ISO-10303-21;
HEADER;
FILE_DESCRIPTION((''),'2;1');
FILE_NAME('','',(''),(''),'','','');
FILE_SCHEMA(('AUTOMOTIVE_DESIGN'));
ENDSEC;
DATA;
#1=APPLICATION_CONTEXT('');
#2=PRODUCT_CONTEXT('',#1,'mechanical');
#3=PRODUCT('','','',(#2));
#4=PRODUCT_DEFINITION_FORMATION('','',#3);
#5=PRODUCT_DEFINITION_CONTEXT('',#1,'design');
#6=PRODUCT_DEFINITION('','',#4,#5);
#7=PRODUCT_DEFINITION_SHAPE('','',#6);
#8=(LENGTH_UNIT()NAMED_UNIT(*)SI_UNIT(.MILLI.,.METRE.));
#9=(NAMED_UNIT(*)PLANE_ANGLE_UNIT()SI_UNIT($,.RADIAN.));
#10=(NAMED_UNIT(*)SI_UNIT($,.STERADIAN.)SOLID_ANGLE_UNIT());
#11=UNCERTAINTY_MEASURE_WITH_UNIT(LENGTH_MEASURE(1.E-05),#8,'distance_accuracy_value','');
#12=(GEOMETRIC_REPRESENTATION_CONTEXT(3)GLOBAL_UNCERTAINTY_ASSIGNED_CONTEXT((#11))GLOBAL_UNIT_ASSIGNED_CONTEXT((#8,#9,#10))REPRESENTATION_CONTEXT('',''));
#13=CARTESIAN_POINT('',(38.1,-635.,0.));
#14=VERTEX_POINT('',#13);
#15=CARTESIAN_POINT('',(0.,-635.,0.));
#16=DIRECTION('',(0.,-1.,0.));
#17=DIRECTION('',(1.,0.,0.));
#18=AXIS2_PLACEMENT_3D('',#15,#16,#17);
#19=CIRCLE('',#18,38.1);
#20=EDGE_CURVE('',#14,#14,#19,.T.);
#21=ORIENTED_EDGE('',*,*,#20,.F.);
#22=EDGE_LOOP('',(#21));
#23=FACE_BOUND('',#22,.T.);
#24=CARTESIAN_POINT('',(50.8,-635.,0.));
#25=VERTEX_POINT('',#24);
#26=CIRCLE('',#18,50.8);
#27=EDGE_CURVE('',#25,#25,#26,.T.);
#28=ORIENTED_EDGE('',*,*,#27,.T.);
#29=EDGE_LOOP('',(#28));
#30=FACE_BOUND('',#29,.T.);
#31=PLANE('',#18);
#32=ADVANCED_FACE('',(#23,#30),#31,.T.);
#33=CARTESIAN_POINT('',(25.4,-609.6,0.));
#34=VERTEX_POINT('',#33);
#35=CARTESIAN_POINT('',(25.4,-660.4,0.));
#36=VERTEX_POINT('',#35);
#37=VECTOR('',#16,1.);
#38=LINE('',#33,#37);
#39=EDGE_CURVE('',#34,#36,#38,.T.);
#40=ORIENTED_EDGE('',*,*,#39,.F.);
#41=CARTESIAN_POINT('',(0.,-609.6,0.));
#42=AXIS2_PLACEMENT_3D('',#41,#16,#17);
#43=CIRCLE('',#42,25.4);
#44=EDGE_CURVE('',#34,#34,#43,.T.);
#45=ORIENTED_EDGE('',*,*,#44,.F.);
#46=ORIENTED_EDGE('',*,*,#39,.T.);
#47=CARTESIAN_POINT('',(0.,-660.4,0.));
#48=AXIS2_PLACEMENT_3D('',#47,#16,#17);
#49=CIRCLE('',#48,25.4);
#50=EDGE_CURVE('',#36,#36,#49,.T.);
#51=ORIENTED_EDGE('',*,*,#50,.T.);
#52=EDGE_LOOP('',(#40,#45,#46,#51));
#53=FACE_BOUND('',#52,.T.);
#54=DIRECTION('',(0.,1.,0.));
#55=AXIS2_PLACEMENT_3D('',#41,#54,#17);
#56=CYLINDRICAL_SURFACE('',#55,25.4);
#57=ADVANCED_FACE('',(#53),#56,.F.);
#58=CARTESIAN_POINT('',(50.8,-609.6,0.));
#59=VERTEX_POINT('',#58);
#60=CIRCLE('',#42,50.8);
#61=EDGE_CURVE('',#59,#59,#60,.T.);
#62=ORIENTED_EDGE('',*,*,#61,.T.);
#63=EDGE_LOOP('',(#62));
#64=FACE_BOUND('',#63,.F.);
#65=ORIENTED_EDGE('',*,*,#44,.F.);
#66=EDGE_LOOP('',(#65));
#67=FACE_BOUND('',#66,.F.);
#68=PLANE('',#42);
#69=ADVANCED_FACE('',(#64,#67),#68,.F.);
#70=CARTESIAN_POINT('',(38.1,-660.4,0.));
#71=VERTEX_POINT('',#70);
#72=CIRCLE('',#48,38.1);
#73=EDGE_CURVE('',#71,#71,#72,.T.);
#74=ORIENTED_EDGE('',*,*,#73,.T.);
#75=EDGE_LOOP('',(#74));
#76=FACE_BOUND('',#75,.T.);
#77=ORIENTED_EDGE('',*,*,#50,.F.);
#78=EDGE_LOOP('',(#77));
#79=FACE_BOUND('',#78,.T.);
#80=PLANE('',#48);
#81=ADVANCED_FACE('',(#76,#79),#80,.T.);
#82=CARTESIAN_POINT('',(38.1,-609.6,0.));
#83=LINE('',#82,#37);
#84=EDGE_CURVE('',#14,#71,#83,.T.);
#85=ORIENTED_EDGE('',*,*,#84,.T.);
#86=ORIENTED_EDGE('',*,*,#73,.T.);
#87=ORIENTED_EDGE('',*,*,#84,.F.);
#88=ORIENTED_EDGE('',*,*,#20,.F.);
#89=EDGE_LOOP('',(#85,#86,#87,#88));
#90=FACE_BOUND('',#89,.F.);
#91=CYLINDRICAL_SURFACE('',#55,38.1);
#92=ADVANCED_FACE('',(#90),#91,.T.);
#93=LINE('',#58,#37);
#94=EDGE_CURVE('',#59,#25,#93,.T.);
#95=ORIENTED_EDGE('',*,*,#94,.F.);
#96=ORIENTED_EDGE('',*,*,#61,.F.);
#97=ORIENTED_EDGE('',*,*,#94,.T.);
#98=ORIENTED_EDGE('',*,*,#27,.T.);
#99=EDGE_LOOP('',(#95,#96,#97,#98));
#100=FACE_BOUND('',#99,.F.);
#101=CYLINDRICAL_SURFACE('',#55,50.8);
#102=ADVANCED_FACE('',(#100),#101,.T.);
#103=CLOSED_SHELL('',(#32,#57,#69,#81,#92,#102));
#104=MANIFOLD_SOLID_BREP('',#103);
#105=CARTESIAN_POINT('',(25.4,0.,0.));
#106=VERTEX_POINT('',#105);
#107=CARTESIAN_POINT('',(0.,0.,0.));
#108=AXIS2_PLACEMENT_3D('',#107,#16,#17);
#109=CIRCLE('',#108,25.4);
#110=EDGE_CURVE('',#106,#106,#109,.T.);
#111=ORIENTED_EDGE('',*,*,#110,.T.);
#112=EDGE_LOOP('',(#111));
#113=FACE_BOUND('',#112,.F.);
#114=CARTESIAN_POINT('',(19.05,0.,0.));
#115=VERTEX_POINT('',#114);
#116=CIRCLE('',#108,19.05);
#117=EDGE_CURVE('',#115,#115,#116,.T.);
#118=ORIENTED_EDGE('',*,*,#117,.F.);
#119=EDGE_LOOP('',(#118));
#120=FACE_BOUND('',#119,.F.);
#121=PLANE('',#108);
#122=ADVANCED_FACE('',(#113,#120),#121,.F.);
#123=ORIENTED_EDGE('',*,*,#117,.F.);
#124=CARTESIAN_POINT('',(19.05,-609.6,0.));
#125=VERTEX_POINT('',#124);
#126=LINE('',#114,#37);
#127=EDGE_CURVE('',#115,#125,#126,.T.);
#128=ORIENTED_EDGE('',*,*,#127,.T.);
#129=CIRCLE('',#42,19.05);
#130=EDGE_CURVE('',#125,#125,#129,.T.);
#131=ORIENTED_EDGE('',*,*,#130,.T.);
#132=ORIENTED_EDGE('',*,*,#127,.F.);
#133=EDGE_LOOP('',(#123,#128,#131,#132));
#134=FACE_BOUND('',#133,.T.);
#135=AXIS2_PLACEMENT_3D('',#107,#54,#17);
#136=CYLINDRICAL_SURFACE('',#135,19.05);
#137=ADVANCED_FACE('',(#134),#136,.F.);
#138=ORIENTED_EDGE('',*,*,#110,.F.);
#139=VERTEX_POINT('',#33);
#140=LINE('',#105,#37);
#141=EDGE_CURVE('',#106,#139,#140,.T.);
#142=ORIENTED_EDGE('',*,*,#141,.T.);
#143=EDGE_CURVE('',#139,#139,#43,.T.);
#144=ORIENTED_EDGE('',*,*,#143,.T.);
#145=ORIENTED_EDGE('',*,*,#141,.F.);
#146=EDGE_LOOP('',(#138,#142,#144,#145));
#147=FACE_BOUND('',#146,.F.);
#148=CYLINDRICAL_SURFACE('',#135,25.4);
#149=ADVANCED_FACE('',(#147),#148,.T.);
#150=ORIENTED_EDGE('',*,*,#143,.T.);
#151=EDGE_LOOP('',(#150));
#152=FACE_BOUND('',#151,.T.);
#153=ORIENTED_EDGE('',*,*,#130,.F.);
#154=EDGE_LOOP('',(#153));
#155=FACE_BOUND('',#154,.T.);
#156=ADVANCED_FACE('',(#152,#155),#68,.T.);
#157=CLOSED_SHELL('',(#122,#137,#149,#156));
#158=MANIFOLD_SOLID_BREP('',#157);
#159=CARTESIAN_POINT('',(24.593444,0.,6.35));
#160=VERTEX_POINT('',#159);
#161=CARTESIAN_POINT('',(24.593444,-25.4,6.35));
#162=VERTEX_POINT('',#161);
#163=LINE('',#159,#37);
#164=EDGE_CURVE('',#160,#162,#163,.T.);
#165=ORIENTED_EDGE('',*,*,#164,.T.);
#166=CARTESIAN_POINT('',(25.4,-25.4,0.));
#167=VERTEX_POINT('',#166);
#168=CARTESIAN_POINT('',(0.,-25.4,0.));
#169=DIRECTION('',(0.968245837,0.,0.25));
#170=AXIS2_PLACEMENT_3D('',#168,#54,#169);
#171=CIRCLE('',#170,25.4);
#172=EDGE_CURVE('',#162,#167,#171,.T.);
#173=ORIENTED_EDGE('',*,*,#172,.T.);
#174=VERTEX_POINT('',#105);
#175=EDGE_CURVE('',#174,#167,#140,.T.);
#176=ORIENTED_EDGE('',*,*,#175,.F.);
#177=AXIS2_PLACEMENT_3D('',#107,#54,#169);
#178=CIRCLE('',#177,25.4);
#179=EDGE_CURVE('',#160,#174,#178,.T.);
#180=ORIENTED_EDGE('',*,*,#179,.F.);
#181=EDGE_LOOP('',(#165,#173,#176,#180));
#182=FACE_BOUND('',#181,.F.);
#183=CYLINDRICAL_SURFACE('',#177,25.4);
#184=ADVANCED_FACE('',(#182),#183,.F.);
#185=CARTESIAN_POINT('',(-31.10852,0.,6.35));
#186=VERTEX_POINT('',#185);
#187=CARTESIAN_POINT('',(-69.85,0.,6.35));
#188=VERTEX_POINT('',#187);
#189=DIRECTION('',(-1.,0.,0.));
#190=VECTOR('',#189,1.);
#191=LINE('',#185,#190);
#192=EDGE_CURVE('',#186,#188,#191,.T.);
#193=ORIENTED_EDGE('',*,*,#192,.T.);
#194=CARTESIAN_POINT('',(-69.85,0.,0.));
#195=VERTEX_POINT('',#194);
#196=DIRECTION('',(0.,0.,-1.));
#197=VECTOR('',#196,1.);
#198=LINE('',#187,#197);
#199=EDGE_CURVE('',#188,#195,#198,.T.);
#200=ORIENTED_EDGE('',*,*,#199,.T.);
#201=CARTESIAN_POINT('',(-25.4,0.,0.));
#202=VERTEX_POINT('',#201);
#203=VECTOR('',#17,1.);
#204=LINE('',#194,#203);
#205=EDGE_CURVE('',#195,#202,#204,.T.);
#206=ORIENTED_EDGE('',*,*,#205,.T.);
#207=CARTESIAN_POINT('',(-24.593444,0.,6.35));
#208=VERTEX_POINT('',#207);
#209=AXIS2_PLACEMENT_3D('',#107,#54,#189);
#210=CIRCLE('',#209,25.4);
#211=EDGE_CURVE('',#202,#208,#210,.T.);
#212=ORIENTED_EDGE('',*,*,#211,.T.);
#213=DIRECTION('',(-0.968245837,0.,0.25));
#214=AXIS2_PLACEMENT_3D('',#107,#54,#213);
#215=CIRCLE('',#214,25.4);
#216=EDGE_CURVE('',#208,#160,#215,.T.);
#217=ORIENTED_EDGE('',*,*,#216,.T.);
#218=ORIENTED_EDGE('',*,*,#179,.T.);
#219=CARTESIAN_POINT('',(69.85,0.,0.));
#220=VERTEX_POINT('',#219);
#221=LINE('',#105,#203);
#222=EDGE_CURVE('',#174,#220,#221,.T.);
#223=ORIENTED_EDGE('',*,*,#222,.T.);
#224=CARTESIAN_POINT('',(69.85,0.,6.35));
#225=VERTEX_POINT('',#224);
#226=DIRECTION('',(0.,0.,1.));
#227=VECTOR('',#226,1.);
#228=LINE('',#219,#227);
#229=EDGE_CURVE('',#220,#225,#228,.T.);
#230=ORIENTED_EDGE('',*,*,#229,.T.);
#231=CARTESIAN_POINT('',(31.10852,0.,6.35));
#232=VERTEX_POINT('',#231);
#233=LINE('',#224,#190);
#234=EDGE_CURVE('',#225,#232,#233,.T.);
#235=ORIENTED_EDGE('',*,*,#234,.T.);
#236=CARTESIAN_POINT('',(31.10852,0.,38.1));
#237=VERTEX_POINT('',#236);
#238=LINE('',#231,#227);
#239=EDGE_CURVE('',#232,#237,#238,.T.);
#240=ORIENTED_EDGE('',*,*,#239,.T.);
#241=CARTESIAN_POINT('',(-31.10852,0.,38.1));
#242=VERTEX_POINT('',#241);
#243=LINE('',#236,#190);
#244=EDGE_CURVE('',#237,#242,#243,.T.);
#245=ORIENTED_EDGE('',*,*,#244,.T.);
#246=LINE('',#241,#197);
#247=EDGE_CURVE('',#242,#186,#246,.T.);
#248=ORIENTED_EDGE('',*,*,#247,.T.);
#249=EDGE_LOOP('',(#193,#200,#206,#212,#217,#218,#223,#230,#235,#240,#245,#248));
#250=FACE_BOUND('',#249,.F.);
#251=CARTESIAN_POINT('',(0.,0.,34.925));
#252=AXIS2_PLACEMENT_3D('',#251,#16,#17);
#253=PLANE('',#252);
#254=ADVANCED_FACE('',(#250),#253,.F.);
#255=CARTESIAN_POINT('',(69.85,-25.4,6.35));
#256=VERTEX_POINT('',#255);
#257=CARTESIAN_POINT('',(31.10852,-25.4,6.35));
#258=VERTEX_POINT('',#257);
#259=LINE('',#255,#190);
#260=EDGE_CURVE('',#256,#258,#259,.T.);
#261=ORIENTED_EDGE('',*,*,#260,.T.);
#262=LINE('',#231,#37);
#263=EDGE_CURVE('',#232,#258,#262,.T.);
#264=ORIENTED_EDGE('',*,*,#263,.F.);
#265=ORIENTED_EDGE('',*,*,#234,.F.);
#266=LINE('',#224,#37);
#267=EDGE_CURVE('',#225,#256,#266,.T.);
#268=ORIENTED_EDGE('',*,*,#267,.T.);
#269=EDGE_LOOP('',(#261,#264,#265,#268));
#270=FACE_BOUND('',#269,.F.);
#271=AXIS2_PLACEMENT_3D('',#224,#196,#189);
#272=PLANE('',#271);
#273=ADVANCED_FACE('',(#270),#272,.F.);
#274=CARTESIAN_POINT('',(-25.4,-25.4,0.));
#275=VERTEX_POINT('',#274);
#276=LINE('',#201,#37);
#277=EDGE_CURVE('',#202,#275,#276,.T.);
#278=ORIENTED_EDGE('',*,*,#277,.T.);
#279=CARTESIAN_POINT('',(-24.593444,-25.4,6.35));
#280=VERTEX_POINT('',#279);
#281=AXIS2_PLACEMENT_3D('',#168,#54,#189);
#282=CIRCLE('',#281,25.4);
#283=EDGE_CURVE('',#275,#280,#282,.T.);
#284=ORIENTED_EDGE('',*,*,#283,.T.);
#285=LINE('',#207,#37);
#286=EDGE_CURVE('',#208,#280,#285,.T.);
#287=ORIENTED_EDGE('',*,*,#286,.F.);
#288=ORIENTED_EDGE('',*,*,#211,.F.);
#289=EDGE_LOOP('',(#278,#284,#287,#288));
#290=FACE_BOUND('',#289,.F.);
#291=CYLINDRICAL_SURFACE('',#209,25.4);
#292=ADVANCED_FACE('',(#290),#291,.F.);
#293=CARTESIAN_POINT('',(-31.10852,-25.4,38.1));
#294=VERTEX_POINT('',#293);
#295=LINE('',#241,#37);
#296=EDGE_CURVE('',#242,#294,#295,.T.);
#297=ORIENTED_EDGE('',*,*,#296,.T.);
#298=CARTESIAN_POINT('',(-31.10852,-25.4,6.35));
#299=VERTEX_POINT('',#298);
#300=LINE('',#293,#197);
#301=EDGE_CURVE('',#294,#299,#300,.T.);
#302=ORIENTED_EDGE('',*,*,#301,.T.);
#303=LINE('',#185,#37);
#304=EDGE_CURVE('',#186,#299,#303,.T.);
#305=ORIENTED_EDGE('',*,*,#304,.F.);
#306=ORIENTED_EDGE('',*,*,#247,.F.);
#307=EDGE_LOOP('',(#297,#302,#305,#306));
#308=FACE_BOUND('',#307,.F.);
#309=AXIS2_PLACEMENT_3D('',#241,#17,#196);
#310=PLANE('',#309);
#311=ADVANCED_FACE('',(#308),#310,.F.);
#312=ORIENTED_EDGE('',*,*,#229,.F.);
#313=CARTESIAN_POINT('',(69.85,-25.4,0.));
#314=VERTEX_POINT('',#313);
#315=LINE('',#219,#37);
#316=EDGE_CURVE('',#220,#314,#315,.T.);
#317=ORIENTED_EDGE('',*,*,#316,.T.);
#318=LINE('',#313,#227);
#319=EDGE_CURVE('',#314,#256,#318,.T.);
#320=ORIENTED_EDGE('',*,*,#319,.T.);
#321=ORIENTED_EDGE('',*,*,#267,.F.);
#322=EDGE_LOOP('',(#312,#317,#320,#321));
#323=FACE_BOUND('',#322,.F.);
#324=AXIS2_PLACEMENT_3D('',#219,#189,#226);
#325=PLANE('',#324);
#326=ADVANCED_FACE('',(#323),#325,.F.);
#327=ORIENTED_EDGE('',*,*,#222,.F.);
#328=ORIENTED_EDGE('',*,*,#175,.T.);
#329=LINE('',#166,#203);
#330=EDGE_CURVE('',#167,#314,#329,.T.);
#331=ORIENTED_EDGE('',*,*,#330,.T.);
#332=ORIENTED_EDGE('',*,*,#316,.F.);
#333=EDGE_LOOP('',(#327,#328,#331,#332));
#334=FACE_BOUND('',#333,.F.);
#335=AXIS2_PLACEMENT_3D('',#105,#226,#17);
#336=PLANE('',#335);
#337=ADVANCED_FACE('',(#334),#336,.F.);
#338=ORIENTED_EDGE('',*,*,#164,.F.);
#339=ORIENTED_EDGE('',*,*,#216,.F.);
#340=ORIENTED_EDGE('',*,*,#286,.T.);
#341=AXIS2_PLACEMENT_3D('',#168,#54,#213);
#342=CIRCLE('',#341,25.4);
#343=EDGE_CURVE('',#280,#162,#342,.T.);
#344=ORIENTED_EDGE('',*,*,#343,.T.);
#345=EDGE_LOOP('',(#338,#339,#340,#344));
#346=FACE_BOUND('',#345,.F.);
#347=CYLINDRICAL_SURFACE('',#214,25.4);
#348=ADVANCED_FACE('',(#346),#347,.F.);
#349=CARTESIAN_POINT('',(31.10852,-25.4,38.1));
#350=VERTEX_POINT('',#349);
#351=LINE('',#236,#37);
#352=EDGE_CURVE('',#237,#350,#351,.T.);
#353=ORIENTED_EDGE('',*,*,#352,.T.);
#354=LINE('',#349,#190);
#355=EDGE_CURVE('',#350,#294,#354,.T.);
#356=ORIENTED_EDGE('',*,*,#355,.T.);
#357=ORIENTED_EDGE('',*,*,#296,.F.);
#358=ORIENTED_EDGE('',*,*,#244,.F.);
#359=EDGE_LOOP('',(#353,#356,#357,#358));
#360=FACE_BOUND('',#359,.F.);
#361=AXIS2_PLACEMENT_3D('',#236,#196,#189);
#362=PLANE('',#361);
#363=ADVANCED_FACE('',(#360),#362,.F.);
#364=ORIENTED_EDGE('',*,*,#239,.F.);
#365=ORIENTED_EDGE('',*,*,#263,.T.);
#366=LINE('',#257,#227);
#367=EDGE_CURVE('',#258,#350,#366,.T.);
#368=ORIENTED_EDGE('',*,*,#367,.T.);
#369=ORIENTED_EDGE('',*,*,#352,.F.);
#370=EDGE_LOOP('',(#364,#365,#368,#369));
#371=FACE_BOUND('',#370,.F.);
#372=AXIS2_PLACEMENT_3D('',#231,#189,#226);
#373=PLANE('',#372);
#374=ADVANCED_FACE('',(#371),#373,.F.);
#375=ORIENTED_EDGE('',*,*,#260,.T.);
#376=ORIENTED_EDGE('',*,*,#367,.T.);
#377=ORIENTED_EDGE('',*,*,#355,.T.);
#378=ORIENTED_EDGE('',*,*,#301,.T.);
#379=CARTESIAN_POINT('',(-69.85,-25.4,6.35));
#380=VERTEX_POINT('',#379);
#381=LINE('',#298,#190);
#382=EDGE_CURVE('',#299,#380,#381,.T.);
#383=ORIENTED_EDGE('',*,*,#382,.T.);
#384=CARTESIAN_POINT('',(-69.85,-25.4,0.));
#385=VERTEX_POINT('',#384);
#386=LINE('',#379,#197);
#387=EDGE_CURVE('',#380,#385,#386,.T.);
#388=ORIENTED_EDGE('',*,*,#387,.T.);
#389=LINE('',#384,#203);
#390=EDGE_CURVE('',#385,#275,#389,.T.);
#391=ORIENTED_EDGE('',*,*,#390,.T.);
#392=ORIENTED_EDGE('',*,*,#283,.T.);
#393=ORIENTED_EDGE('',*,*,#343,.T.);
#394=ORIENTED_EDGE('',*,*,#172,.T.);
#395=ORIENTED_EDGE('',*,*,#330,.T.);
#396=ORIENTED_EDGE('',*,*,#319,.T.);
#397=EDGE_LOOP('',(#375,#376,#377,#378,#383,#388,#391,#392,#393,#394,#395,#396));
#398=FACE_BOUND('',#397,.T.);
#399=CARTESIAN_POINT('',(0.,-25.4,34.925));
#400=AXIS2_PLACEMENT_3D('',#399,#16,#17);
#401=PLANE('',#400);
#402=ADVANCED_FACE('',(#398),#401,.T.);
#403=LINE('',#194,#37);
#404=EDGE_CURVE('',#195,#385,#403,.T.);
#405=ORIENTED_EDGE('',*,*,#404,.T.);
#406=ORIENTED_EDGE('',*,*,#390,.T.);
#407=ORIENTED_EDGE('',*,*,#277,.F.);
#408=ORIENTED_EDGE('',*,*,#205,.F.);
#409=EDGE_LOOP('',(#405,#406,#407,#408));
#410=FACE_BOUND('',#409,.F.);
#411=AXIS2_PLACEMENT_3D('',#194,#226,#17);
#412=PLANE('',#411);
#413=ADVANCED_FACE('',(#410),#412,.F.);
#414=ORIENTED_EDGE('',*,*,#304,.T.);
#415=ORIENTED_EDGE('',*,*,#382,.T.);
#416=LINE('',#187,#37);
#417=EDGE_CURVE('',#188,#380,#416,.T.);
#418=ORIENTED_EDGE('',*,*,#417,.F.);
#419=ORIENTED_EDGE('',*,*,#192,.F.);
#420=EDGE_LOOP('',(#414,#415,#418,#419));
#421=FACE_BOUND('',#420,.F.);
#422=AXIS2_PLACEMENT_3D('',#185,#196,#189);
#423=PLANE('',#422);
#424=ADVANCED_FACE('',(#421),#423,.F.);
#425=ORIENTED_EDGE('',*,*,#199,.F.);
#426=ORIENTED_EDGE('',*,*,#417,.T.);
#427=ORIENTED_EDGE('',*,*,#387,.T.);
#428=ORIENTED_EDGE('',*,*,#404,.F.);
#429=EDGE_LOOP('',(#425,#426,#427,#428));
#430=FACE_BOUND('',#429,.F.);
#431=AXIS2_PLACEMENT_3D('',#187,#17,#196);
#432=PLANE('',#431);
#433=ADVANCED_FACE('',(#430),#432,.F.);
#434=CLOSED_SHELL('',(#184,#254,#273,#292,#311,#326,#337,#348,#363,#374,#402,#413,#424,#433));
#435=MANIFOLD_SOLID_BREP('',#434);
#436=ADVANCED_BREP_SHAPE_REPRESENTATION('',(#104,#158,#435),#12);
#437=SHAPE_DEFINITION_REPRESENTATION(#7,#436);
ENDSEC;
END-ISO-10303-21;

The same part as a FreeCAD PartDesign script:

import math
import FreeCAD as App
import Part
import Sketcher
from FreeCAD import Vector
Q = App.Units.Quantity

doc = App.newDocument("Part")
body = doc.addObject("PartDesign::Body", "Body")

# Sketch on XZ plane
sketch1 = body.newObject("Sketcher::SketchObject", "Sketch")
sketch1.AttachmentSupport = (doc.getObject("XZ_Plane"), [""])
sketch1.MapMode = "FlatFace"
sketch1.addGeometry([
    Part.Circle(Vector(0, 0, 0), Vector(0, 0, 1), 25),
    Part.Circle(Vector(0, 0, 0), Vector(0, 0, 1), 19),
], False)
sketch1.addConstraint([
    Sketcher.Constraint("Coincident", 0, 3, -1, 1),
    Sketcher.Constraint("Coincident", 1, 3, -1, 1),
    Sketcher.Constraint("Diameter", 0, Q("2 in")),
    Sketcher.Constraint("Diameter", 1, Q("1.5 in")),
])
pad1 = body.newObject("PartDesign::Pad", "Pad")
pad1.Profile = sketch1
pad1.Length = Q("24 in")
body2 = doc.addObject("PartDesign::Body", "Body001")

# Sketch on XZ plane
sketch2 = body2.newObject("Sketcher::SketchObject", "Sketch001")
sketch2.AttachmentSupport = (doc.getObject("XZ_Plane001"), [""])
sketch2.MapMode = "FlatFace"
sketch2.addGeometry([
    Part.ArcOfCircle(Part.Circle(Vector(0, 0, 0), Vector(0, 0, 1), 25), math.radians(14), math.radians(166)),  # 0
    Part.ArcOfCircle(Part.Circle(Vector(0, 0, 0), Vector(0, 0, 1), 25), math.radians(0), math.radians(14.48)),  # 1
    Part.LineSegment(Vector(25, 0, 0), Vector(70, 0, 0)),  # 2
    Part.LineSegment(Vector(70, 0, 0), Vector(70, 6, 0)),  # 3
    Part.LineSegment(Vector(70, 6, 0), Vector(31, 6, 0)),  # 4
    Part.ArcOfCircle(Part.Circle(Vector(0, 0, 0), Vector(0, 0, 1), 32), math.radians(12), math.radians(168)),  # 5
    Part.LineSegment(Vector(-31, 6, 0), Vector(-70, 6, 0)),  # 6
    Part.LineSegment(Vector(-70, 6, 0), Vector(-70, 0, 0)),  # 7
    Part.LineSegment(Vector(-70, 0, 0), Vector(-25, 0, 0)),  # 8
    Part.ArcOfCircle(Part.Circle(Vector(0, 0, 0), Vector(0, 0, 1), 25), math.radians(165.52), math.radians(180)),  # 9
], False)
sketch2.addConstraint([
    Sketcher.Constraint("Tangent", 0, 1, 1, 2),
    Sketcher.Constraint("Coincident", 1, 1, 2, 1),
    Sketcher.Constraint("Coincident", 2, 2, 3, 1),
    Sketcher.Constraint("Coincident", 3, 2, 4, 1),
    Sketcher.Constraint("Coincident", 4, 2, 5, 1),
    Sketcher.Constraint("Coincident", 5, 2, 6, 1),
    Sketcher.Constraint("Coincident", 6, 2, 7, 1),
    Sketcher.Constraint("Coincident", 7, 2, 8, 1),
    Sketcher.Constraint("Coincident", 8, 2, 9, 2),
    Sketcher.Constraint("Tangent", 9, 1, 0, 2),
    Sketcher.Constraint("Horizontal", 2),
    Sketcher.Constraint("Vertical", 3),
    Sketcher.Constraint("Horizontal", 4),
    Sketcher.Constraint("Horizontal", 6),
    Sketcher.Constraint("Vertical", 7),
    Sketcher.Constraint("Horizontal", 8),
    Sketcher.Constraint("Coincident", 0, 3, -1, 1),
    Sketcher.Constraint("Coincident", 5, 3, -1, 1),
    Sketcher.Constraint("Equal", 0, 1),
    Sketcher.Constraint("Equal", 1, 9),
    Sketcher.Constraint("Symmetric", 2, 2, 7, 2, -1, 1),
    Sketcher.Constraint("PointOnObject", 1, 1, -1),
    Sketcher.Constraint("Horizontal", 0, 1, 3, 2),
    Sketcher.Constraint("Horizontal", 4, 2, 5, 2),
    Sketcher.Constraint("Horizontal", 6, 2, 9, 1),
    Sketcher.Constraint("Radius", 0, Q("1 in")),
    Sketcher.Constraint("Radius", 5, Q("1.25 in")),
    Sketcher.Constraint("DistanceX", 2, 1, 2, 2, Q("1.75 in")),
    Sketcher.Constraint("DistanceY", 3, 1, 3, 2, Q("0.25 in")),
])
pad2 = body2.newObject("PartDesign::Pad", "Pad001")
pad2.Profile = sketch2
pad2.Length = Q("1 in")

# Sketch on XZ plane
sketch3 = body2.newObject("Sketcher::SketchObject", "Sketch002")
sketch3.AttachmentSupport = (doc.getObject("XZ_Plane001"), [""])
sketch3.MapMode = "FlatFace"
sketch3.addGeometry([
    Part.ArcOfCircle(Part.Circle(Vector(0, 0, 0), Vector(0, 0, 1), 32), math.radians(12), math.radians(90)),  # 0
    Part.LineSegment(Vector(31, 6, 0), Vector(31, 38, 0)),  # 1
    Part.LineSegment(Vector(31, 38, 0), Vector(-31, 38, 0)),  # 2
    Part.LineSegment(Vector(-31, 38, 0), Vector(-31, 6, 0)),  # 3
    Part.ArcOfCircle(Part.Circle(Vector(0, 0, 0), Vector(0, 0, 1), 32), math.radians(90), math.radians(168)),  # 4
], False)
sketch3.addConstraint([
    Sketcher.Constraint("Coincident", 0, 1, 1, 1),
    Sketcher.Constraint("Coincident", 1, 2, 2, 1),
    Sketcher.Constraint("Coincident", 2, 2, 3, 1),
    Sketcher.Constraint("Coincident", 3, 2, 4, 2),
    Sketcher.Constraint("Tangent", 4, 1, 0, 2),
    Sketcher.Constraint("Vertical", 1),
    Sketcher.Constraint("Horizontal", 2),
    Sketcher.Constraint("Vertical", 3),
    Sketcher.Constraint("Coincident", 0, 3, -1, 1),
    Sketcher.Constraint("Equal", 0, 4),
    Sketcher.Constraint("PointOnObject", 4, 1, -2),
    Sketcher.Constraint("Horizontal", 0, 1, 3, 2),
    Sketcher.Constraint("Radius", 0, Q("1.25 in")),
    Sketcher.Constraint("DistanceY", 3, 2, 4, 1, Q("1 in")),
    Sketcher.Constraint("DistanceY", 1, 1, 1, 2, Q("1.25 in")),
])
pad3 = body2.newObject("PartDesign::Pad", "Pad002")
pad3.Profile = sketch3
pad3.Length = Q("1 in")
body3 = doc.addObject("PartDesign::Body", "Body002")

# Sketch on XZ plane
sketch4 = body3.newObject("Sketcher::SketchObject", "Sketch003")
sketch4.AttachmentSupport = (doc.getObject("XZ_Plane002"), [""])
sketch4.MapMode = "FlatFace"
sketch4.AttachmentOffset = App.Placement(Vector(0, 0, 24 * 25.4), App.Rotation())
sketch4.addGeometry([
    Part.Circle(Vector(0, 0, 0), Vector(0, 0, 1), 51),
    Part.Circle(Vector(0, 0, 0), Vector(0, 0, 1), 38),
], False)
sketch4.addConstraint([
    Sketcher.Constraint("Coincident", 0, 3, -1, 1),
    Sketcher.Constraint("Coincident", 1, 3, -1, 1),
    Sketcher.Constraint("Diameter", 0, Q("4 in")),
    Sketcher.Constraint("Diameter", 1, Q("3 in")),
])
pad4 = body3.newObject("PartDesign::Pad", "Pad003")
pad4.Profile = sketch4
pad4.Length = Q("1 in")
body.AllowCompound = True
doc.recompute()

boolean = body.newObject("PartDesign::Boolean", "Boolean")
boolean.Type = "Fuse"
boolean.addObjects([body3])

# Sketch on XZ plane
sketch5 = body.newObject("Sketcher::SketchObject", "Sketch004")
sketch5.AttachmentSupport = (doc.getObject("XZ_Plane"), [""])
sketch5.MapMode = "FlatFace"
sketch5.AttachmentOffset = App.Placement(Vector(0, 0, 24 * 25.4), App.Rotation())
sketch5.addGeometry([
    Part.Circle(Vector(0, 0, 0), Vector(0, 0, 1), 38),
    Part.Circle(Vector(0, 0, 0), Vector(0, 0, 1), 25),
], False)
sketch5.addConstraint([
    Sketcher.Constraint("Coincident", 0, 3, -1, 1),
    Sketcher.Constraint("Coincident", 1, 3, -1, 1),
    Sketcher.Constraint("Diameter", 0, Q("3 in")),
    Sketcher.Constraint("Diameter", 1, Q("2 in")),
])
pad5 = body.newObject("PartDesign::Pad", "Pad004")
pad5.Profile = sketch5
pad5.Length = Q("2 in")

doc.recompute()
